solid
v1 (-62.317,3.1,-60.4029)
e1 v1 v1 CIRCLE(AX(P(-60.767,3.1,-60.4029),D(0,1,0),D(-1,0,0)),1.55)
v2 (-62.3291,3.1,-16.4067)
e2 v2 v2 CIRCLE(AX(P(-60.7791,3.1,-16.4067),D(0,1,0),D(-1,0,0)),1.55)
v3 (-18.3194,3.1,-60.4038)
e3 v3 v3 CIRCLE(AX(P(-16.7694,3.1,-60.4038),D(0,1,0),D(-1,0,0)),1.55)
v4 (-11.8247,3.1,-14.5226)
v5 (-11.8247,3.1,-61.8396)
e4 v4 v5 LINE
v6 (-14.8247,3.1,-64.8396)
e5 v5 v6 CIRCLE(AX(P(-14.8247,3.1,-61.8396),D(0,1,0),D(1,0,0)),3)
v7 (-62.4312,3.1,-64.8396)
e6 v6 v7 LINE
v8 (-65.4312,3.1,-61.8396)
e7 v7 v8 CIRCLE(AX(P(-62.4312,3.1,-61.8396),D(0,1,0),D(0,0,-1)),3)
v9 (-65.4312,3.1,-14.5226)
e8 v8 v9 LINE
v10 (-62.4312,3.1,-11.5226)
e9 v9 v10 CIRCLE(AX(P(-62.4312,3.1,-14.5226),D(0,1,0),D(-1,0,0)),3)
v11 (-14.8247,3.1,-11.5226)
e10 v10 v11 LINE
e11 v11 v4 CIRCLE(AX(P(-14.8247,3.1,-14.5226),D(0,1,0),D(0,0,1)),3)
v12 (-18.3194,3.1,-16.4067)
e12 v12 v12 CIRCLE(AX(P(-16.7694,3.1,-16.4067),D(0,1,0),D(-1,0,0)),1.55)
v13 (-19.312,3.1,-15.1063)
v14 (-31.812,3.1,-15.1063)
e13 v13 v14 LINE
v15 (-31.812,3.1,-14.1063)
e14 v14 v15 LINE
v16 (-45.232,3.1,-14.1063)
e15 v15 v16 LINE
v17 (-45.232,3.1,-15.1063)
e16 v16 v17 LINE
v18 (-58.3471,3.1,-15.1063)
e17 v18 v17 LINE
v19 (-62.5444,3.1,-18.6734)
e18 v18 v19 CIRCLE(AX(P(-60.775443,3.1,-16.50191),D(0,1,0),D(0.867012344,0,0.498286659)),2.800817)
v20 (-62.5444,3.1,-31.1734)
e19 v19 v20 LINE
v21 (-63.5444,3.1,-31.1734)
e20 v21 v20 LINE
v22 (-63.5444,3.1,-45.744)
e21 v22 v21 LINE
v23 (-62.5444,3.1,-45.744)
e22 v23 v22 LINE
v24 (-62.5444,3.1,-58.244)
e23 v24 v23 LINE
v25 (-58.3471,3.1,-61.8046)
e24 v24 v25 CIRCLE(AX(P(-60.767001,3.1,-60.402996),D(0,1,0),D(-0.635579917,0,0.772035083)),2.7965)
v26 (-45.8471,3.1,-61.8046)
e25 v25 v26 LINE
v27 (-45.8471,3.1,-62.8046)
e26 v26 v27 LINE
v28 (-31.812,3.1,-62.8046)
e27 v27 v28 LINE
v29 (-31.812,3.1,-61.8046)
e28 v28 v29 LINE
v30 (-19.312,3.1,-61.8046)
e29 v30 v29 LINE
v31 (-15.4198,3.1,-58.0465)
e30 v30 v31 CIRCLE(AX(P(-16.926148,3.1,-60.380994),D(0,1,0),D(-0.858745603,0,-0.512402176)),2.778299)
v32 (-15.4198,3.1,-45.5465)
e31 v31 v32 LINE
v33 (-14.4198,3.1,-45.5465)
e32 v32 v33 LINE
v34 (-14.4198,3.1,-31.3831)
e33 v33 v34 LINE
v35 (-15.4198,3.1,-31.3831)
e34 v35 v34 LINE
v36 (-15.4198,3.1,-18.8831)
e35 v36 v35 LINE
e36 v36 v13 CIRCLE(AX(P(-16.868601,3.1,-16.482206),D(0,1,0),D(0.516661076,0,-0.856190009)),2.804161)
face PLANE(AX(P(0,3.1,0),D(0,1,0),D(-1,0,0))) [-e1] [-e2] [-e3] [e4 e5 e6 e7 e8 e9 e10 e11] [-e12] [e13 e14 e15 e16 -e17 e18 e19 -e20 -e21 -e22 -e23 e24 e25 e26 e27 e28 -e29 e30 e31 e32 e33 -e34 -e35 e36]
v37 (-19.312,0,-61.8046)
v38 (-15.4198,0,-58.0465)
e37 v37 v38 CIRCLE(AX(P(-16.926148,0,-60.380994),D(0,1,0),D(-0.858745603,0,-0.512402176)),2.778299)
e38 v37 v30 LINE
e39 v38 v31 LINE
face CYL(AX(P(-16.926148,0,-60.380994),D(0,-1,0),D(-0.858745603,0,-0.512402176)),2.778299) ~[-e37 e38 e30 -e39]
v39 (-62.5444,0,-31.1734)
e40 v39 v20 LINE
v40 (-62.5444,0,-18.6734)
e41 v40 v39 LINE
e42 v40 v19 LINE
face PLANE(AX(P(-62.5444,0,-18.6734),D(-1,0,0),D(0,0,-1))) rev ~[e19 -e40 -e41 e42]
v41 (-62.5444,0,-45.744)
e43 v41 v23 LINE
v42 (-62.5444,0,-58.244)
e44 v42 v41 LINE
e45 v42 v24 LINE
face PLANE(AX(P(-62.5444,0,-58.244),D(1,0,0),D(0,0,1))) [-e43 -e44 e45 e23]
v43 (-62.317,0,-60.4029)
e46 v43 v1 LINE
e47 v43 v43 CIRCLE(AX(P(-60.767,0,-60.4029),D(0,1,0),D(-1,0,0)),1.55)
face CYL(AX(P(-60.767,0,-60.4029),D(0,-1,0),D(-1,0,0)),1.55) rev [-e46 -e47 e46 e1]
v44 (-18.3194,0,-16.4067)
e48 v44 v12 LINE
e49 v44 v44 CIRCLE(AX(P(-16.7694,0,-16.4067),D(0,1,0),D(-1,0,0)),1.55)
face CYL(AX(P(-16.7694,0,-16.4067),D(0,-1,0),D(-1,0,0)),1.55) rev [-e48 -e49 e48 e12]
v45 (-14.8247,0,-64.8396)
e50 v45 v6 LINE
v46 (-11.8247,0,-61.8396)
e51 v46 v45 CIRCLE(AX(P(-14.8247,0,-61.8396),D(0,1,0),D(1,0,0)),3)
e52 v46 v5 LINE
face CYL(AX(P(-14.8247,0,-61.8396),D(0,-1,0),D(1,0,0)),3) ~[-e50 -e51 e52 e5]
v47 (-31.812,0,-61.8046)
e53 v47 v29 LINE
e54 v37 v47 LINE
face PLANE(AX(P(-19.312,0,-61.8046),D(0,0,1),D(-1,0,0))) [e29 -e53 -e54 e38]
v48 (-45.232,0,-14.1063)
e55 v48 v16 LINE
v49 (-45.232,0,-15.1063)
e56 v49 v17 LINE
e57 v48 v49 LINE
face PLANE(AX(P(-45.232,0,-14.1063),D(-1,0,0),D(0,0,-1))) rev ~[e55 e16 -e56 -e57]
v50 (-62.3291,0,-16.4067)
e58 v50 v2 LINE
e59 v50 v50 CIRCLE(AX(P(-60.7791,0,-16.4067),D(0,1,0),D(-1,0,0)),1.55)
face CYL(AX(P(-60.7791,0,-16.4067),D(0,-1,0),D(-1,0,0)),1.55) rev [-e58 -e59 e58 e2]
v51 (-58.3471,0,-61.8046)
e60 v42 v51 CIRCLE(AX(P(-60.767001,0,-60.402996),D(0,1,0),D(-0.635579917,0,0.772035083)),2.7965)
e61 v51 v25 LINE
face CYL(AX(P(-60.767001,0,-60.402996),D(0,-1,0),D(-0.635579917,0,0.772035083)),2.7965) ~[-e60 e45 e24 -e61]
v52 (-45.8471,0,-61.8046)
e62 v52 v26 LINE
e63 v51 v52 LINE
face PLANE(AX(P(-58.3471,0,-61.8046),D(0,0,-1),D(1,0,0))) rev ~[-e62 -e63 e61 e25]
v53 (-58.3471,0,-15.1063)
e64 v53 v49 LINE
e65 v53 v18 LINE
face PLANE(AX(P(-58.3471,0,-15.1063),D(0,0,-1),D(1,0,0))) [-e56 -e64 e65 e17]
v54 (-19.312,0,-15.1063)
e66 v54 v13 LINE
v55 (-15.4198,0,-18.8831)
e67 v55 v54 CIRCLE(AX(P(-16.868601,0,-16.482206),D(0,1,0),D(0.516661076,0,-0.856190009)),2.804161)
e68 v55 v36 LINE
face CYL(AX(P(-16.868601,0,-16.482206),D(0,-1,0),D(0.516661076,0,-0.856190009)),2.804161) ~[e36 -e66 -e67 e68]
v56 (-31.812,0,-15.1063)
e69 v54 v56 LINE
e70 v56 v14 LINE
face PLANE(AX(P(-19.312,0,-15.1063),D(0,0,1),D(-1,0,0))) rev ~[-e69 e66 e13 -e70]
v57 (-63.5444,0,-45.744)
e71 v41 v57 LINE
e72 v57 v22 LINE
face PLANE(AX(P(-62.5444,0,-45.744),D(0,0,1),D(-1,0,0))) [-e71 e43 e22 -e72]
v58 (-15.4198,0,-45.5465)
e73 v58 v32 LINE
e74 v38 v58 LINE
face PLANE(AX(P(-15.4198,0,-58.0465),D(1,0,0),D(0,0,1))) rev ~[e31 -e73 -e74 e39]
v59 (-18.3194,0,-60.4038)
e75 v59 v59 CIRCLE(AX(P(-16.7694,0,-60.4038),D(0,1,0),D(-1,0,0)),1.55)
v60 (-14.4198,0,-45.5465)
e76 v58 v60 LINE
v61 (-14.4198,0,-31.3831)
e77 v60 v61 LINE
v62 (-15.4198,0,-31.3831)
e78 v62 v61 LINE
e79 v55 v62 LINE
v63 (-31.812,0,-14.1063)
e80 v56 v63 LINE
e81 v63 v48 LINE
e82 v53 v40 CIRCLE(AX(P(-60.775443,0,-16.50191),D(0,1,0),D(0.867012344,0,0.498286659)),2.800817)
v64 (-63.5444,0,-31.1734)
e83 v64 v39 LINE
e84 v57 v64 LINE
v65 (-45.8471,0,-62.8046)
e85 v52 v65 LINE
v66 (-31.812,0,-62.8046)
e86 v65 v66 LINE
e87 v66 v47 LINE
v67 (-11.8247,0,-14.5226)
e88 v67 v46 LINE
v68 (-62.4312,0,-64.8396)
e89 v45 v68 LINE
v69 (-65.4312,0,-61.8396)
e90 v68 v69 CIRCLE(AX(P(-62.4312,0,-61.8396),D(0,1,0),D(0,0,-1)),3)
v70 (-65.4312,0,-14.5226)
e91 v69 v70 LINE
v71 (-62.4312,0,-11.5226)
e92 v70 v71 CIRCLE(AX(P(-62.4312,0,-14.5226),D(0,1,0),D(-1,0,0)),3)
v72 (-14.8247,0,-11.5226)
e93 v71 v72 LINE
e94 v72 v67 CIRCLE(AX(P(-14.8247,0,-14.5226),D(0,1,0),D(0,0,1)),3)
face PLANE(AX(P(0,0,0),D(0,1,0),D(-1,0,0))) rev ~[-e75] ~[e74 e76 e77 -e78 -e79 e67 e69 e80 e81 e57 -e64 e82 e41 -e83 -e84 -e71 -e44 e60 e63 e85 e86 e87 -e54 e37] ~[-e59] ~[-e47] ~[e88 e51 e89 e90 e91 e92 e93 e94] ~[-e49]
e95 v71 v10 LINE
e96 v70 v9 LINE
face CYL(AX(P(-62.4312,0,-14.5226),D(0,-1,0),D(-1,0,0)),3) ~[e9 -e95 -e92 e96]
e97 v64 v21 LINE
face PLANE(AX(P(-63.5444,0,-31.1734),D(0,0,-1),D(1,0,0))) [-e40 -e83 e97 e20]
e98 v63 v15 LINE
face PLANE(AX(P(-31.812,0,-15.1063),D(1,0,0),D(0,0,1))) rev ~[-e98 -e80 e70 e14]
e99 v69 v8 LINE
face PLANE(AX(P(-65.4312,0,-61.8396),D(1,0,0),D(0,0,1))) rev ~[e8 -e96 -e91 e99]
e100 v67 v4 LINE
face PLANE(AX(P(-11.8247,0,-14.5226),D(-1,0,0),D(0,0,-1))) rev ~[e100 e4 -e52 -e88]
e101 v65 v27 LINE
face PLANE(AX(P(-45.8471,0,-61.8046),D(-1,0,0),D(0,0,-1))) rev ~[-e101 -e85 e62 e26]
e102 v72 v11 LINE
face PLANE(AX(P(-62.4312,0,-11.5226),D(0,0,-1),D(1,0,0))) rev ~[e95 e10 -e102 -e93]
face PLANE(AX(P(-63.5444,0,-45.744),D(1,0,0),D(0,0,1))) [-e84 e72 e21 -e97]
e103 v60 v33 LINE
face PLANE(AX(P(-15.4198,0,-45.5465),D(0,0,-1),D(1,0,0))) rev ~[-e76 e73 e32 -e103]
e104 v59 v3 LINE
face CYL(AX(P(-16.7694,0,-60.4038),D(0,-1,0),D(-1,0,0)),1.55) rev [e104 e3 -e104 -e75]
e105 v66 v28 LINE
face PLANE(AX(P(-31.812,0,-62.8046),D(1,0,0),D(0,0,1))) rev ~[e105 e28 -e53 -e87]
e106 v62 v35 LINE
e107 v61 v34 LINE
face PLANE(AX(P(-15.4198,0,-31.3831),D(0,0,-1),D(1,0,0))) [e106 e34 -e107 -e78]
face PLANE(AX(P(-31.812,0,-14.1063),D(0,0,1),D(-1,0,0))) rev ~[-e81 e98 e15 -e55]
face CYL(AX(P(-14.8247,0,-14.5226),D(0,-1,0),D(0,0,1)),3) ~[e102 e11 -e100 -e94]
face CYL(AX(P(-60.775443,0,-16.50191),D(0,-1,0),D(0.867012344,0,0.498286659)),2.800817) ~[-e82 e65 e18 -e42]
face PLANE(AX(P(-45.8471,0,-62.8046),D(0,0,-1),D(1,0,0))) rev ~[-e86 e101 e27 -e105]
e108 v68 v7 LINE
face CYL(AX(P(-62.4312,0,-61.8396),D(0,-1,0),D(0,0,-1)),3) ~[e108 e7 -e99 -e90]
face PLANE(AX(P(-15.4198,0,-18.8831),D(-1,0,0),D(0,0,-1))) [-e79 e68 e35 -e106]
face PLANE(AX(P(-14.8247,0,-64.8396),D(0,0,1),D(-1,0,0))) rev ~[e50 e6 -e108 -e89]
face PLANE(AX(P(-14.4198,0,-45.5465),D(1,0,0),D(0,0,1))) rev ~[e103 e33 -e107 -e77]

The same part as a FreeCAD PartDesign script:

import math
import FreeCAD as App
import Part
import Sketcher

doc = App.newDocument("Part")
params = doc.addObject("Spreadsheet::Sheet", "Params")
for row, (alias, value) in enumerate([
    ("sketch1_radius", "3 mm"),
    ("sketch1_diameter", "3.1 mm"),
    ("sketch1_width", "1 mm"),
    ("sketch1_width2", "12.5 mm"),
    ("sketch1_width3", "13.42 mm"),
    ("pad1_length", "3.1 mm"),
], start=1):
    params.set(f"A{row}", alias)
    params.set(f"B{row}", "=" + value)
    params.setAlias(f"B{row}", alias)

body = doc.addObject("PartDesign::Body", "Body")

# Sketch on XZ plane
sketch1 = body.newObject("Sketcher::SketchObject", "Sketch")
sketch1.AttachmentSupport = (doc.getObject("XZ_Plane"), [""])
sketch1.MapMode = "FlatFace"
sketch1.addGeometry([
    Part.ArcOfCircle(Part.Circle(App.Vector(-62.4, -14.5, 0), App.Vector(0, 0, 1), 3), math.radians(90), math.radians(180)),  # 0
    Part.LineSegment(App.Vector(-62.4, -11.5, 0), App.Vector(-14.8, -11.5, 0)),  # 1
    Part.ArcOfCircle(Part.Circle(App.Vector(-14.8, -14.5, 0), App.Vector(0, 0, 1), 3), math.radians(0), math.radians(90)),  # 2
    Part.LineSegment(App.Vector(-11.8, -14.5, 0), App.Vector(-11.8, -61.8, 0)),  # 3
    Part.ArcOfCircle(Part.Circle(App.Vector(-14.8, -61.8, 0), App.Vector(0, 0, 1), 3), math.radians(-90), math.radians(0)),  # 4
    Part.LineSegment(App.Vector(-14.8, -64.8, 0), App.Vector(-62.4, -64.8, 0)),  # 5
    Part.ArcOfCircle(Part.Circle(App.Vector(-62.4, -61.8, 0), App.Vector(0, 0, 1), 3), math.radians(180), math.radians(270)),  # 6
    Part.LineSegment(App.Vector(-65.4, -61.8, 0), App.Vector(-65.4, -14.5, 0)),  # 7
    Part.Circle(App.Vector(-16.8, -60.4, 0), App.Vector(0, 0, 1), 1.6),  # 8
    Part.Circle(App.Vector(-60.8, -60.4, 0), App.Vector(0, 0, 1), 1.6),  # 9
    Part.LineSegment(App.Vector(-15.4, -31.4, 0), App.Vector(-15.4, -18.9, 0)),  # 10
    Part.ArcOfCircle(Part.Circle(App.Vector(-16.9, -16.5, 0), App.Vector(0, 0, 1), 2.8), math.radians(151), math.radians(301)),  # 11
    Part.LineSegment(App.Vector(-19.3, -15.1, 0), App.Vector(-31.8, -15.1, 0)),  # 12
    Part.LineSegment(App.Vector(-31.8, -15.1, 0), App.Vector(-31.8, -14.1, 0)),  # 13
    Part.LineSegment(App.Vector(-31.8, -14.1, 0), App.Vector(-45.2, -14.1, 0)),  # 14
    Part.LineSegment(App.Vector(-45.2, -14.1, 0), App.Vector(-45.2, -15.1, 0)),  # 15
    Part.LineSegment(App.Vector(-45.2, -15.1, 0), App.Vector(-58.3, -15.1, 0)),  # 16
    Part.ArcOfCircle(Part.Circle(App.Vector(-60.8, -16.5, 0), App.Vector(0, 0, 1), 2.8), math.radians(-129), math.radians(30)),  # 17
    Part.LineSegment(App.Vector(-62.5, -18.7, 0), App.Vector(-62.5, -31.2, 0)),  # 18
    Part.LineSegment(App.Vector(-62.5, -31.2, 0), App.Vector(-63.5, -31.2, 0)),  # 19
    Part.LineSegment(App.Vector(-63.5, -31.2, 0), App.Vector(-63.5, -45.7, 0)),  # 20
    Part.LineSegment(App.Vector(-63.5, -45.7, 0), App.Vector(-62.5, -45.7, 0)),  # 21
    Part.LineSegment(App.Vector(-62.5, -45.7, 0), App.Vector(-62.5, -58.2, 0)),  # 22
    Part.ArcOfCircle(Part.Circle(App.Vector(-60.8, -60.4, 0), App.Vector(0, 0, 1), 2.8), math.radians(-30), math.radians(129)),  # 23
    Part.LineSegment(App.Vector(-58.3, -61.8, 0), App.Vector(-45.8, -61.8, 0)),  # 24
    Part.LineSegment(App.Vector(-45.8, -61.8, 0), App.Vector(-45.8, -62.8, 0)),  # 25
    Part.LineSegment(App.Vector(-45.8, -62.8, 0), App.Vector(-31.8, -62.8, 0)),  # 26
    Part.LineSegment(App.Vector(-31.8, -62.8, 0), App.Vector(-31.8, -61.8, 0)),  # 27
    Part.LineSegment(App.Vector(-31.8, -61.8, 0), App.Vector(-19.3, -61.8, 0)),  # 28
    Part.ArcOfCircle(Part.Circle(App.Vector(-16.9, -60.4, 0), App.Vector(0, 0, 1), 2.8), math.radians(57), math.radians(211)),  # 29
    Part.LineSegment(App.Vector(-15.4, -58, 0), App.Vector(-15.4, -45.5, 0)),  # 30
    Part.LineSegment(App.Vector(-15.4, -45.5, 0), App.Vector(-14.4, -45.5, 0)),  # 31
    Part.LineSegment(App.Vector(-14.4, -45.5, 0), App.Vector(-14.4, -31.4, 0)),  # 32
    Part.LineSegment(App.Vector(-14.4, -31.4, 0), App.Vector(-15.4, -31.4, 0)),  # 33
    Part.Circle(App.Vector(-16.8, -16.4, 0), App.Vector(0, 0, 1), 1.6),  # 34
    Part.Circle(App.Vector(-60.8, -16.4, 0), App.Vector(0, 0, 1), 1.6),  # 35
], False)
sketch1.addConstraint([
    Sketcher.Constraint("Tangent", 0, 1, 1, 1),
    Sketcher.Constraint("Tangent", 1, 2, 2, 2),
    Sketcher.Constraint("Tangent", 2, 1, 3, 1),
    Sketcher.Constraint("Tangent", 3, 2, 4, 2),
    Sketcher.Constraint("Tangent", 4, 1, 5, 1),
    Sketcher.Constraint("Tangent", 5, 2, 6, 2),
    Sketcher.Constraint("Tangent", 6, 1, 7, 1),
    Sketcher.Constraint("Tangent", 7, 2, 0, 2),
    Sketcher.Constraint("Coincident", 10, 2, 11, 2),
    Sketcher.Constraint("Coincident", 11, 1, 12, 1),
    Sketcher.Constraint("Coincident", 12, 2, 13, 1),
    Sketcher.Constraint("Coincident", 13, 2, 14, 1),
    Sketcher.Constraint("Coincident", 14, 2, 15, 1),
    Sketcher.Constraint("Coincident", 15, 2, 16, 1),
    Sketcher.Constraint("Coincident", 16, 2, 17, 2),
    Sketcher.Constraint("Coincident", 17, 1, 18, 1),
    Sketcher.Constraint("Coincident", 18, 2, 19, 1),
    Sketcher.Constraint("Coincident", 19, 2, 20, 1),
    Sketcher.Constraint("Coincident", 20, 2, 21, 1),
    Sketcher.Constraint("Coincident", 21, 2, 22, 1),
    Sketcher.Constraint("Coincident", 22, 2, 23, 2),
    Sketcher.Constraint("Coincident", 23, 1, 24, 1),
    Sketcher.Constraint("Coincident", 24, 2, 25, 1),
    Sketcher.Constraint("Coincident", 25, 2, 26, 1),
    Sketcher.Constraint("Coincident", 26, 2, 27, 1),
    Sketcher.Constraint("Coincident", 27, 2, 28, 1),
    Sketcher.Constraint("Coincident", 28, 2, 29, 2),
    Sketcher.Constraint("Coincident", 29, 1, 30, 1),
    Sketcher.Constraint("Coincident", 30, 2, 31, 1),
    Sketcher.Constraint("Coincident", 31, 2, 32, 1),
    Sketcher.Constraint("Coincident", 32, 2, 33, 1),
    Sketcher.Constraint("Coincident", 33, 2, 10, 1),
    Sketcher.Constraint("Horizontal", 1),
    Sketcher.Constraint("Vertical", 3),
    Sketcher.Constraint("Horizontal", 5),
    Sketcher.Constraint("Vertical", 7),
    Sketcher.Constraint("Vertical", 10),
    Sketcher.Constraint("Horizontal", 12),
    Sketcher.Constraint("Vertical", 13),
    Sketcher.Constraint("Horizontal", 14),
    Sketcher.Constraint("Vertical", 15),
    Sketcher.Constraint("Horizontal", 16),
    Sketcher.Constraint("Vertical", 18),
    Sketcher.Constraint("Horizontal", 19),
    Sketcher.Constraint("Vertical", 20),
    Sketcher.Constraint("Horizontal", 21),
    Sketcher.Constraint("Vertical", 22),
    Sketcher.Constraint("Horizontal", 24),
    Sketcher.Constraint("Vertical", 25),
    Sketcher.Constraint("Horizontal", 26),
    Sketcher.Constraint("Vertical", 27),
    Sketcher.Constraint("Horizontal", 28),
    Sketcher.Constraint("Vertical", 30),
    Sketcher.Constraint("Horizontal", 31),
    Sketcher.Constraint("Vertical", 32),
    Sketcher.Constraint("Horizontal", 33),
    Sketcher.Constraint("Coincident", 23, 3, 9, 3),
    Sketcher.Constraint("Equal", 0, 2),
    Sketcher.Constraint("Equal", 2, 4),
    Sketcher.Constraint("Equal", 4, 6),
    Sketcher.Constraint("Equal", 8, 9),
    Sketcher.Constraint("Equal", 9, 34),
    Sketcher.Constraint("Equal", 34, 35),
    Sketcher.Constraint("Horizontal", 34, 3, 35, 3),
    Sketcher.Constraint("Horizontal", 12, 2, 15, 2),
    Sketcher.Constraint("Horizontal", 24, 2, 27, 2),
    Sketcher.Constraint("Vertical", 8, 3, 34, 3),
    Sketcher.Constraint("Vertical", 18, 2, 21, 2),
    Sketcher.Constraint("Vertical", 16, 2, 23, 1),
    Sketcher.Constraint("Vertical", 13, 2, 26, 2),
    Sketcher.Constraint("Vertical", 11, 1, 28, 2),
    Sketcher.Constraint("Vertical", 10, 2, 29, 1),
    Sketcher.Constraint("Equal", 12, 24),
    Sketcher.Constraint("Equal", 21, 31),
    Sketcher.Constraint("Equal", 28, 10),
    Sketcher.Constraint("Equal", 33, 13),
    Sketcher.Constraint("Equal", 10, 18),
    Sketcher.Constraint("Equal", 18, 22),
    Sketcher.Constraint("Equal", 15, 25),
    Sketcher.Constraint("Equal", 22, 30),
    Sketcher.Constraint("Radius", 0, 3.0),
    Sketcher.Constraint("Diameter", 8, 3.1),
    Sketcher.Constraint("DistanceX", 19, 2, 19, 1, 1.0),
    Sketcher.Constraint("DistanceX", 12, 2, 12, 1, 12.5),
    Sketcher.Constraint("DistanceX", 1, 1, 1, 2, 47.6065),
    Sketcher.Constraint("DistanceX", 14, 2, 14, 1, 13.42),
    Sketcher.Constraint("Radius", 11, 2.8042),
    Sketcher.Constraint("Radius", 17, 2.8009),
    Sketcher.Constraint("Radius", 23, 2.7964),
    Sketcher.Constraint("Radius", 29, 2.7783),
    Sketcher.Constraint("DistanceX", 16, 2, 16, 1, 13.115),
    Sketcher.Constraint("DistanceY", 3, 2, 3, 1, 47.317),
    Sketcher.Constraint("DistanceX", 9, 3, 24, 2, 14.92),
    Sketcher.Constraint("DistanceY", 20, 2, 20, 1, 14.5706),
    Sketcher.Constraint("DistanceY", 32, 1, 32, 2, 14.1634),
    Sketcher.Constraint("DistanceX", 9, 3, -1, 1, 60.767),
    Sketcher.Constraint("DistanceY", 9, 3, -1, 1, 60.403),
    Sketcher.Constraint("DistanceY", 17, 3, -1, 1, 16.502),
    Sketcher.Constraint("DistanceX", 29, 3, -1, 1, 16.926),
    Sketcher.Constraint("DistanceX", 35, 3, -1, 1, 60.779),
    Sketcher.Constraint("DistanceY", 10, 2, -1, 1, 18.883),
    Sketcher.Constraint("DistanceY", 20, 2, -1, 1, 45.744),
    Sketcher.Constraint("DistanceY", 8, 3, 9, 3, 0.001),
    Sketcher.Constraint("DistanceX", 11, 3, 2, 3, 2.044),
    Sketcher.Constraint("DistanceY", 34, 3, 2, 3, 1.884),
    Sketcher.Constraint("DistanceY", 8, 3, 34, 3, 43.997),
    Sketcher.Constraint("DistanceX", 17, 3, 34, 3, 44.006),
])
sketch1.setExpression("Constraints[80]", "Params.sketch1_radius")
sketch1.setExpression("Constraints[81]", "Params.sketch1_diameter")
sketch1.setExpression("Constraints[82]", "Params.sketch1_width")
sketch1.setExpression("Constraints[83]", "Params.sketch1_width2")
sketch1.setExpression("Constraints[85]", "Params.sketch1_width3")
pad1 = body.newObject("PartDesign::Pad", "Pad")
pad1.Profile = sketch1
pad1.setExpression("Length", "Params.pad1_length")
pad1.Reversed = True

doc.recompute()
